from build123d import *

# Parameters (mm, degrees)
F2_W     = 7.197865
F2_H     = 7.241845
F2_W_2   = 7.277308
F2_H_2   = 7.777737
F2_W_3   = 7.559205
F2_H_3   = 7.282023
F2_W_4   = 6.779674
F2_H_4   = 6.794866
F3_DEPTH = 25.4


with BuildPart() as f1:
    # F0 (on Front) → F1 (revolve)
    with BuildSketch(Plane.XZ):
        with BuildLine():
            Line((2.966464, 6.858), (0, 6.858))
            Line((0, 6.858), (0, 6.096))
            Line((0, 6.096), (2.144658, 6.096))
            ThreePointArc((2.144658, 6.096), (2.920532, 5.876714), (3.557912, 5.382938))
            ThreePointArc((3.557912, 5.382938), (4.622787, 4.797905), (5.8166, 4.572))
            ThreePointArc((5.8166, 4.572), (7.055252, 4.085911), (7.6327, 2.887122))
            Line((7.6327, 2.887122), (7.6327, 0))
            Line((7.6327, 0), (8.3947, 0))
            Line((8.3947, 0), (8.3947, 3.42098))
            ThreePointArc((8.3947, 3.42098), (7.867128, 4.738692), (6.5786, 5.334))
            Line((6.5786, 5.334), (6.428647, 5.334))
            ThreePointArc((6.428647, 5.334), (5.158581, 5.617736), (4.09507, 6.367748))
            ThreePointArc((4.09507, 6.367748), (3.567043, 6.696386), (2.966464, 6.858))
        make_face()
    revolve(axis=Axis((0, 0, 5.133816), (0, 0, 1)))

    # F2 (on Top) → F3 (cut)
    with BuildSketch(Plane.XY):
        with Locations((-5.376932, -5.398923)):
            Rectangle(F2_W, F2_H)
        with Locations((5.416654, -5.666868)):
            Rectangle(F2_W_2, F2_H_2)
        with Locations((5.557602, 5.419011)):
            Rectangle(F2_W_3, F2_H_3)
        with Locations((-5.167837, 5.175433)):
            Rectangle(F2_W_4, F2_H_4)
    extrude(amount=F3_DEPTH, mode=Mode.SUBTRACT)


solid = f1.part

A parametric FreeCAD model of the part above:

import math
import FreeCAD as App
import Part
import Sketcher
from FreeCAD import Vector
Q = App.Units.Quantity


def add_polygon(sketch, points):
    """Adds a closed chain of lines whose ends are joined by coincident constraints."""
    first, n = sketch.GeometryCount, len(points)
    for a, b in zip(points, points[1:] + points[:1]):
        sketch.addGeometry(Part.LineSegment(App.Vector(*a, 0), App.Vector(*b, 0)), False)
    for i in range(n):
        sketch.addConstraint(Sketcher.Constraint("Coincident", first + i, 2, first + (i + 1) % n, 1))

doc = App.newDocument("Part")
body = doc.addObject("PartDesign::Body", "Body")

sketch1 = body.newObject("Sketcher::SketchObject", "Sketch")
sketch1.AttachmentSupport = (doc.getObject("XZ_Plane"), [""])
sketch1.MapMode = "FlatFace"
sketch1.addGeometry([
    Part.LineSegment(Vector(2.97, 6.86, 0), Vector(0, 6.86, 0)),
    Part.LineSegment(Vector(0, 6.86, 0), Vector(0, 6.1, 0)),
    Part.LineSegment(Vector(0, 6.1, 0), Vector(2.14, 6.1, 0)),
    Part.ArcOfCircle(Part.Circle(Vector(1.97, 3.99, 0), Vector(0, 0, 1), 2.11), math.radians(41), math.radians(85)),
    Part.ArcOfCircle(Part.Circle(Vector(5.93, 8.44, 0), Vector(0, 0, 1), 3.87), math.radians(-128), math.radians(-92)),
    Part.ArcOfCircle(Part.Circle(Vector(5.82, 2.75, 0), Vector(0, 0, 1), 1.82), math.radians(4), math.radians(90)),
    Part.LineSegment(Vector(7.63, 2.89, 0), Vector(7.63, 0, 0)),
    Part.LineSegment(Vector(7.63, 0, 0), Vector(8.39, 0, 0)),
    Part.LineSegment(Vector(8.39, 0, 0), Vector(8.39, 3.42, 0)),
    Part.ArcOfCircle(Part.Circle(Vector(6.47, 3.42, 0), Vector(0, 0, 1), 1.92), math.radians(0), math.radians(87)),
    Part.LineSegment(Vector(6.58, 5.33, 0), Vector(6.43, 5.33, 0)),
    Part.ArcOfCircle(Part.Circle(Vector(6.5, 8.65, 0), Vector(0, 0, 1), 3.32), math.radians(-136), math.radians(-91)),
    Part.ArcOfCircle(Part.Circle(Vector(2.72, 4.75, 0), Vector(0, 0, 1), 2.12), math.radians(50), math.radians(83)),
], False)
sketch1.addConstraint([
    Sketcher.Constraint("Coincident", 0, 2, 1, 1),
    Sketcher.Constraint("Coincident", 1, 2, 2, 1),
    Sketcher.Constraint("Coincident", 2, 2, 3, 2),
    Sketcher.Constraint("Coincident", 3, 1, 4, 1),
    Sketcher.Constraint("Coincident", 4, 2, 5, 2),
    Sketcher.Constraint("Coincident", 5, 1, 6, 1),
    Sketcher.Constraint("Coincident", 6, 2, 7, 1),
    Sketcher.Constraint("Coincident", 7, 2, 8, 1),
    Sketcher.Constraint("Coincident", 8, 2, 9, 1),
    Sketcher.Constraint("Coincident", 9, 2, 10, 1),
    Sketcher.Constraint("Coincident", 10, 2, 11, 2),
    Sketcher.Constraint("Coincident", 11, 1, 12, 1),
    Sketcher.Constraint("Coincident", 12, 2, 0, 1),
    Sketcher.Constraint("Horizontal", 0),
    Sketcher.Constraint("Vertical", 1),
    Sketcher.Constraint("Horizontal", 2),
    Sketcher.Constraint("Vertical", 6),
    Sketcher.Constraint("Horizontal", 7),
    Sketcher.Constraint("Vertical", 8),
    Sketcher.Constraint("Horizontal", 10),
    Sketcher.Constraint("PointOnObject", 0, 2, -2),
    Sketcher.Constraint("PointOnObject", 6, 2, -1),
    Sketcher.Constraint("Vertical", 5, 3, 4, 2),
    Sketcher.Constraint("Equal", 7, 1),
    Sketcher.Constraint("DistanceX", 7, 1, 7, 2, Q("0.03 in")),
    Sketcher.Constraint("DistanceY", -1, 1, 0, 2, Q("0.27 in")),
    Sketcher.Constraint("DistanceY", -1, 1, 4, 2, Q("0.18 in")),
    Sketcher.Constraint("DistanceY", -1, 1, 9, 2, Q("0.21 in")),
    Sketcher.Constraint("DistanceX", 4, 2, 9, 2, Q("0.03 in")),
    Sketcher.Constraint("DistanceX", -1, 1, 5, 3, Q("0.229 in")),
    Sketcher.Constraint("Radius", 4, Q("3.868782 mm")),
    Sketcher.Constraint("Radius", 5, Q("1.821209 mm")),
    Sketcher.Constraint("Radius", 11, Q("3.320871 mm")),
    Sketcher.Constraint("DistanceX", -1, 1, 5, 1, Q("0.3005 in")),
    Sketcher.Constraint("Radius", 3, Q("2.114386 mm")),
    Sketcher.Constraint("Radius", 9, Q("1.920134 mm")),
    Sketcher.Constraint("Radius", 12, Q("2.124176 mm")),
    Sketcher.Constraint("DistanceX", 2, 1, 2, 2, Q("2.144658 mm")),
    Sketcher.Constraint("DistanceY", 8, 1, 8, 2, Q("3.42098 mm")),
    Sketcher.Constraint("DistanceY", -1, 1, 3, 3, Q("3.989 mm")),
    Sketcher.Constraint("DistanceY", 9, 3, 12, 3, Q("1.331399 mm")),
    Sketcher.Constraint("DistanceX", 0, 2, 0, 1, Q("2.966464 mm")),
    Sketcher.Constraint("DistanceX", 10, 2, 10, 1, Q("0.149953 mm")),
    Sketcher.Constraint("DistanceX", -1, 1, 3, 1, Q("3.557912 mm")),
    Sketcher.Constraint("DistanceX", -1, 1, 11, 1, Q("4.09507 mm")),
])
revolution = body.newObject("PartDesign::Revolution", "Revolution")
revolution.Profile = sketch1
revolution.ReferenceAxis = (sketch1, ["V_Axis"])
revolution.Angle = 360

sketch2 = body.newObject("Sketcher::SketchObject", "Sketch001")
sketch2.AttachmentSupport = (doc.getObject("XY_Plane"), [""])
sketch2.MapMode = "FlatFace"
add_polygon(sketch2, [(-9, -2), (-9, -9), (-2, -9), (-2, -2)])
add_polygon(sketch2, [(2, -2), (2, -10), (9, -10), (9, -2)])
add_polygon(sketch2, [(2, 9), (2, 2), (9, 2), (9, 9)])
add_polygon(sketch2, [(-9, 9), (-9, 2), (-2, 2), (-2, 9)])
sketch2.addConstraint([
    Sketcher.Constraint("Vertical", 0),
    Sketcher.Constraint("Horizontal", 1),
    Sketcher.Constraint("Vertical", 2),
    Sketcher.Constraint("Horizontal", 3),
    Sketcher.Constraint("Vertical", 4),
    Sketcher.Constraint("Horizontal", 5),
    Sketcher.Constraint("Vertical", 6),
    Sketcher.Constraint("Horizontal", 7),
    Sketcher.Constraint("Vertical", 8),
    Sketcher.Constraint("Horizontal", 9),
    Sketcher.Constraint("Vertical", 10),
    Sketcher.Constraint("Horizontal", 11),
    Sketcher.Constraint("Vertical", 12),
    Sketcher.Constraint("Horizontal", 13),
    Sketcher.Constraint("Vertical", 14),
    Sketcher.Constraint("Horizontal", 15),
    Sketcher.Constraint("Symmetric", 2, 2, 8, 2, -1, 1),
    Sketcher.Constraint("Symmetric", 7, 2, 13, 2, -1, 1),
    Sketcher.Constraint("Symmetric", 2, 2, 7, 2, -2),
    Sketcher.Constraint("DistanceX", 1, 2, -1, 1, Q("0.07 in")),
    Sketcher.Constraint("DistanceY", 2, 2, -1, 1, Q("0.07 in")),
    Sketcher.Constraint("DistanceX", 1, 1, 1, 2, Q("7.197865 mm")),
    Sketcher.Constraint("DistanceX", 5, 1, 5, 2, Q("7.277308 mm")),
    Sketcher.Constraint("DistanceX", 9, 1, 9, 2, Q("7.559205 mm")),
    Sketcher.Constraint("DistanceX", 13, 1, 13, 2, Q("6.779674 mm")),
    Sketcher.Constraint("DistanceY", 0, 2, 0, 1, Q("7.241845 mm")),
    Sketcher.Constraint("DistanceY", 4, 2, 4, 1, Q("7.777737 mm")),
    Sketcher.Constraint("DistanceY", 8, 2, 8, 1, Q("7.282023 mm")),
    Sketcher.Constraint("DistanceY", 12, 2, 12, 1, Q("6.794866 mm")),
])
pocket1 = body.newObject("PartDesign::Pocket", "Pocket")
pocket1.Profile = sketch2
pocket1.Length = Q("1 in")
pocket1.Reversed = True

doc.recompute()
